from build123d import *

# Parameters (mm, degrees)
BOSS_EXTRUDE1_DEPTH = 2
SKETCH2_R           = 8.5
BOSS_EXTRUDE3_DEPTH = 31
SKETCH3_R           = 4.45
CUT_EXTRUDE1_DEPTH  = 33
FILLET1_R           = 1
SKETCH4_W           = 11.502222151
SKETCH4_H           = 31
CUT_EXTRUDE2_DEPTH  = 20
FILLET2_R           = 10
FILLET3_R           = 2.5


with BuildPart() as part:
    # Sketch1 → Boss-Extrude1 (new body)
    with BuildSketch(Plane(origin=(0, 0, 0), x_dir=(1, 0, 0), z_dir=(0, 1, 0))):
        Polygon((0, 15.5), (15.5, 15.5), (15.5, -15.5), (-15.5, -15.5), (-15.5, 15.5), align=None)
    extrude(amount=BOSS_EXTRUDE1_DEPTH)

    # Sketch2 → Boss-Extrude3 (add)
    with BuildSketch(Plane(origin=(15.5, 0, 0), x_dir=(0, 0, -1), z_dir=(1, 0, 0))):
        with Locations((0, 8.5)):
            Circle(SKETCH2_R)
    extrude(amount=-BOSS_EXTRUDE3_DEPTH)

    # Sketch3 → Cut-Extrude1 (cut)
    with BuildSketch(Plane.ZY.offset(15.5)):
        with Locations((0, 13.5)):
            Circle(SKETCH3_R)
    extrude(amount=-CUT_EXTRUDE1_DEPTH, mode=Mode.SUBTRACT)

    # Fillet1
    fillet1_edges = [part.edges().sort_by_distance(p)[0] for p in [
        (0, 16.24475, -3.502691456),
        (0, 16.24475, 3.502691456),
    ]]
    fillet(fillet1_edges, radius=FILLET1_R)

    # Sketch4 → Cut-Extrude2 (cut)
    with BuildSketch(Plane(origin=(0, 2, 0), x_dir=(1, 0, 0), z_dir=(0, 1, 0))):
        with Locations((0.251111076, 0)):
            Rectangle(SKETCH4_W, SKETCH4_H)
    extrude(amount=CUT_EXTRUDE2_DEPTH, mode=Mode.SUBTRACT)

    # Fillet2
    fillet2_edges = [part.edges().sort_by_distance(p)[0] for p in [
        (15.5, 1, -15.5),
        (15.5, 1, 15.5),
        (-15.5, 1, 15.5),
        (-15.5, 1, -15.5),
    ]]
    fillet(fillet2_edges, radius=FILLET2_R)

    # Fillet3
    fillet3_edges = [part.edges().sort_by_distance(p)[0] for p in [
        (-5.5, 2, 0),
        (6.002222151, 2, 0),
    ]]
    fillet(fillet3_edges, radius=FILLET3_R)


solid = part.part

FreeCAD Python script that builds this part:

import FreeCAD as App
import Part
import Sketcher

V = App.Vector
Q = App.Units.Quantity


def edges_at(feature, points):
    """Names of the edges that pass closest to the given points."""
    edges = feature.Shape.Edges
    near = lambda p: min(range(len(edges)), key=lambda i: edges[i].distToShape(Part.Vertex(*p))[0])
    return sorted({f"Edge{near(p) + 1}" for p in points})


def add_polygon(sketch, points):
    """Adds a closed chain of lines whose ends are joined by coincident constraints."""
    first, n = sketch.GeometryCount, len(points)
    for a, b in zip(points, points[1:] + points[:1]):
        sketch.addGeometry(Part.LineSegment(App.Vector(*a, 0), App.Vector(*b, 0)), False)
    for i in range(n):
        sketch.addConstraint(Sketcher.Constraint("Coincident", first + i, 2, first + (i + 1) % n, 1))

doc = App.newDocument("Part")
body = doc.addObject("PartDesign::Body", "Body")

sketch1 = body.newObject("Sketcher::SketchObject", "Sketch")
sketch1.AttachmentSupport = (doc.getObject("XZ_Plane"), [""])
sketch1.MapMode = "FlatFace"
add_polygon(sketch1, [(15.5, -15.5), (-15.5, -15.5), (-15.5, 15.5), (15.5, 15.5)])
sketch1.addConstraint(Sketcher.Constraint("Horizontal", 0))
sketch1.addConstraint(Sketcher.Constraint("Vertical", 1))
sketch1.addConstraint(Sketcher.Constraint("Horizontal", 2))
sketch1.addConstraint(Sketcher.Constraint("Vertical", 3))
sketch1.addConstraint(Sketcher.Constraint("Symmetric", 0, 2, 2, 2, -1, 1))
sketch1.addConstraint(Sketcher.Constraint("Equal", 2, 1))
sketch1.addConstraint(Sketcher.Constraint("DistanceX", 0, 2, 0, 1, Q("31 mm")))
pad1 = body.newObject("PartDesign::Pad", "Pad")
pad1.Profile = sketch1
pad1.Length = 2
pad1.Reversed = True

sketch2 = body.newObject("Sketcher::SketchObject", "Sketch001")
sketch2.AttachmentSupport = (doc.getObject("YZ_Plane"), [""])
sketch2.MapMode = "FlatFace"
sketch2.AttachmentOffset = App.Placement(V(0, 0, 15.5), App.Rotation())
sketch2.addGeometry(Part.Circle(V(8.5, 0, 0), V(0, 0, 1), 8.5), False)
sketch2.addConstraint(Sketcher.Constraint("PointOnObject", 0, 3, -1))
sketch2.addConstraint(Sketcher.Constraint("Diameter", 0, Q("17 mm")))
sketch2.addConstraint(Sketcher.Constraint("DistanceX", -1, 1, 0, 3, Q("8.5 mm")))
pad2 = body.newObject("PartDesign::Pad", "Pad001")
pad2.Profile = sketch2
pad2.Length = 31
pad2.Reversed = True

sketch3 = body.newObject("Sketcher::SketchObject", "Sketch002")
sketch3.AttachmentSupport = (doc.getObject("YZ_Plane"), [""])
sketch3.MapMode = "FlatFace"
sketch3.AttachmentOffset = App.Placement(V(0, 0, -15.5), App.Rotation())
sketch3.addGeometry(Part.Circle(V(13.5, 0, 0), V(0, 0, 1), 4.45), False)
sketch3.addConstraint(Sketcher.Constraint("PointOnObject", 0, 3, -1))
sketch3.addConstraint(Sketcher.Constraint("Diameter", 0, Q("8.9 mm")))
sketch3.addConstraint(Sketcher.Constraint("DistanceX", -1, 1, 0, 3, Q("13.5 mm")))
pocket1 = body.newObject("PartDesign::Pocket", "Pocket")
pocket1.Profile = sketch3
pocket1.Length = 33
pocket1.Reversed = True
doc.recompute()

fillet = body.newObject("PartDesign::Fillet", "Fillet")
fillet.Base = (pocket1, edges_at(pocket1, [(0, 16.245, -3.503), (0, 16.245, 3.503)]))
fillet.Radius = 1

sketch4 = body.newObject("Sketcher::SketchObject", "Sketch003")
sketch4.AttachmentSupport = (doc.getObject("XZ_Plane"), [""])
sketch4.MapMode = "FlatFace"
sketch4.AttachmentOffset = App.Placement(V(0, 0, -2), App.Rotation())
add_polygon(sketch4, [(-5.5, -15.5), (-5.5, 15.5), (6.002222, 15.5), (6.002222, -15.5)])
sketch4.addConstraint(Sketcher.Constraint("Vertical", 0))
sketch4.addConstraint(Sketcher.Constraint("Horizontal", 1))
sketch4.addConstraint(Sketcher.Constraint("Vertical", 2))
sketch4.addConstraint(Sketcher.Constraint("Horizontal", 3))
sketch4.addConstraint(Sketcher.Constraint("DistanceY", 0, 1, 0, 2, Q("31 mm")))
sketch4.addConstraint(Sketcher.Constraint("DistanceX", 0, 2, -1, 1, Q("5.5 mm")))
sketch4.addConstraint(Sketcher.Constraint("DistanceY", -1, 1, 0, 2, Q("15.5 mm")))
sketch4.addConstraint(Sketcher.Constraint("DistanceX", 1, 1, 1, 2, Q("11.502222 mm")))
pocket2 = body.newObject("PartDesign::Pocket", "Pocket001")
pocket2.Profile = sketch4
pocket2.Length = 20
doc.recompute()

fillet2 = body.newObject("PartDesign::Fillet", "Fillet001")
fillet2.Base = (pocket2, edges_at(pocket2, [
    (15.5, 1, -15.5),
    (15.5, 1, 15.5),
    (-15.5, 1, 15.5),
    (-15.5, 1, -15.5),
]))
fillet2.Radius = 10
doc.recompute()

fillet3 = body.newObject("PartDesign::Fillet", "Fillet002")
fillet3.Base = (fillet2, edges_at(fillet2, [(-5.5, 2, 0), (6.002, 2, 0)]))
fillet3.Radius = 2.5

doc.recompute()
